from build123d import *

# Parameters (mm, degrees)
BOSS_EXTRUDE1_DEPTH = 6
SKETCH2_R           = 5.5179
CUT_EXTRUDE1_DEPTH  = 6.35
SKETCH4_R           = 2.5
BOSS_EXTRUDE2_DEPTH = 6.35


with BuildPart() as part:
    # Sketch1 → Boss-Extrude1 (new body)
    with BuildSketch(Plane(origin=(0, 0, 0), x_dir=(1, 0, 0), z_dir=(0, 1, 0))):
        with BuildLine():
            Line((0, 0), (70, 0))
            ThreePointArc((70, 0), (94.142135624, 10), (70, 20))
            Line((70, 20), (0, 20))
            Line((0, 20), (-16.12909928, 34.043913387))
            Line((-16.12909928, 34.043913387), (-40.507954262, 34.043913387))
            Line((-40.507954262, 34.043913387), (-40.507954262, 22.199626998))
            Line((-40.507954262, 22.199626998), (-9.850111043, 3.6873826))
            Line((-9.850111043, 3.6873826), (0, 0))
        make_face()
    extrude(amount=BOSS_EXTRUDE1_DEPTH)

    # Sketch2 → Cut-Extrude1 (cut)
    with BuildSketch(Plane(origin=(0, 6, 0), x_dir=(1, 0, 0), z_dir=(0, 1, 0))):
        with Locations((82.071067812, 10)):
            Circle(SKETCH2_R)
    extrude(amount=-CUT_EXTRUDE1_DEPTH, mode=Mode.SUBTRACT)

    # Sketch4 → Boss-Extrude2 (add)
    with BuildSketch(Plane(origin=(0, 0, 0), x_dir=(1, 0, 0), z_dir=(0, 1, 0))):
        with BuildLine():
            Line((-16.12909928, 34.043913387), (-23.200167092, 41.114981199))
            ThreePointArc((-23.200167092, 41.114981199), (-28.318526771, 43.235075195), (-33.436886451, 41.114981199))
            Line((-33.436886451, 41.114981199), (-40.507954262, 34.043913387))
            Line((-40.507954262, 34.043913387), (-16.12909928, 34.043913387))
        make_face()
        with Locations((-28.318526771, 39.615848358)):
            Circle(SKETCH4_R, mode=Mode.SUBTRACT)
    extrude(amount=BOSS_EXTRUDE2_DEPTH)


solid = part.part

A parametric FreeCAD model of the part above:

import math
import FreeCAD as App
import Part
import Sketcher

doc = App.newDocument("Part")
params = doc.addObject("Spreadsheet::Sheet", "Params")
for row, (alias, value) in enumerate([
    ("sketch1_width", "70 mm"),
    ("pad1_length", "6 mm"),
    ("pocket1_length", "6.35 mm"),
    ("sketch3_diameter", "5 mm"),
    ("sketch3_length", "10 mm"),
    ("pad2_length", "6.35 mm"),
], start=1):
    params.set(f"A{row}", alias)
    params.set(f"B{row}", "=" + value)
    params.setAlias(f"B{row}", alias)

body = doc.addObject("PartDesign::Body", "Body")

# Sketch on XZ plane
sketch1 = body.newObject("Sketcher::SketchObject", "Sketch")
sketch1.AttachmentSupport = (doc.getObject("XZ_Plane"), [""])
sketch1.MapMode = "FlatFace"
sketch1.addGeometry(Part.LineSegment(App.Vector(0, 0, 0), App.Vector(70, 0, 0)), False)
sketch1.addGeometry(Part.ArcOfCircle(Part.Circle(App.Vector(80, -10, 0), App.Vector(0, 0, 1), 14), math.radians(-135), math.radians(135)), False)
sketch1.addGeometry(Part.LineSegment(App.Vector(70, -20, 0), App.Vector(0, -20, 0)), False)
sketch1.addGeometry(Part.LineSegment(App.Vector(0, -20, 0), App.Vector(-16, -34, 0)), False)
sketch1.addGeometry(Part.LineSegment(App.Vector(-16, -34, 0), App.Vector(-41, -34, 0)), False)
sketch1.addGeometry(Part.LineSegment(App.Vector(-41, -34, 0), App.Vector(-41, -22, 0)), False)
sketch1.addGeometry(Part.LineSegment(App.Vector(-41, -22, 0), App.Vector(-10, -4, 0)), False)
sketch1.addGeometry(Part.LineSegment(App.Vector(-10, -4, 0), App.Vector(0, 0, 0)), False)
sketch1.addConstraint(Sketcher.Constraint("Coincident", 0, 2, 1, 2))
sketch1.addConstraint(Sketcher.Constraint("Coincident", 1, 1, 2, 1))
sketch1.addConstraint(Sketcher.Constraint("Coincident", 2, 2, 3, 1))
sketch1.addConstraint(Sketcher.Constraint("Coincident", 3, 2, 4, 1))
sketch1.addConstraint(Sketcher.Constraint("Coincident", 4, 2, 5, 1))
sketch1.addConstraint(Sketcher.Constraint("Coincident", 5, 2, 6, 1))
sketch1.addConstraint(Sketcher.Constraint("Coincident", 6, 2, 7, 1))
sketch1.addConstraint(Sketcher.Constraint("Coincident", 7, 2, 0, 1))
sketch1.addConstraint(Sketcher.Constraint("Horizontal", 0))
sketch1.addConstraint(Sketcher.Constraint("Horizontal", 2))
sketch1.addConstraint(Sketcher.Constraint("Horizontal", 4))
sketch1.addConstraint(Sketcher.Constraint("Vertical", 5))
sketch1.addConstraint(Sketcher.Constraint("Coincident", 7, 2, -1, 1))
sketch1.addConstraint(Sketcher.Constraint("PointOnObject", 2, 2, -2))
sketch1.addConstraint(Sketcher.Constraint("Vertical", 0, 2, 1, 1))
sketch1.addConstraint(Sketcher.Constraint("DistanceX", 0, 1, 0, 2, 70.0))
sketch1.addConstraint(Sketcher.Constraint("DistanceX", -1, 1, 1, 3, 80.0))
sketch1.addConstraint(Sketcher.Constraint("DistanceY", 1, 3, -1, 1, 10.0))
sketch1.addConstraint(Sketcher.Constraint("DistanceX", 3, 2, -1, 1, 16.129099))
sketch1.addConstraint(Sketcher.Constraint("Distance", 3, 21.386429))
sketch1.addConstraint(Sketcher.Constraint("DistanceX", 4, 2, 4, 1, 24.378855))
sketch1.addConstraint(Sketcher.Constraint("DistanceY", 5, 1, 5, 2, 11.844286))
sketch1.addConstraint(Sketcher.Constraint("DistanceX", 6, 2, -1, 1, 9.850111))
sketch1.addConstraint(Sketcher.Constraint("DistanceY", 3, 2, 6, 2, 30.356531))
sketch1.setExpression("Constraints[15]", "Params.sketch1_width")
pad1 = body.newObject("PartDesign::Pad", "Pad")
pad1.Profile = sketch1
pad1.setExpression("Length", "Params.pad1_length")
pad1.Reversed = True

# Sketch on XZ plane
sketch2 = body.newObject("Sketcher::SketchObject", "Sketch001")
sketch2.AttachmentSupport = (doc.getObject("XZ_Plane"), [""])
sketch2.MapMode = "FlatFace"
sketch2.AttachmentOffset = App.Placement(App.Vector(0, 0, -6), App.Rotation())
sketch2.addGeometry(Part.Circle(App.Vector(82, -10, 0), App.Vector(0, 0, 1), 6), False)
sketch2.addConstraint(Sketcher.Constraint("DistanceY", 0, 3, -1, 1, 10.0))
sketch2.addConstraint(Sketcher.Constraint("Diameter", 0, 11.0358))
sketch2.addConstraint(Sketcher.Constraint("DistanceX", -1, 1, 0, 3, 82.071068))
pocket1 = body.newObject("PartDesign::Pocket", "Pocket")
pocket1.Profile = sketch2
pocket1.setExpression("Length", "Params.pocket1_length")
pocket1.Reversed = True

# Sketch on XZ plane
sketch3 = body.newObject("Sketcher::SketchObject", "Sketch002")
sketch3.AttachmentSupport = (doc.getObject("XZ_Plane"), [""])
sketch3.MapMode = "FlatFace"
sketch3.addGeometry(Part.LineSegment(App.Vector(-16.1, -34, 0), App.Vector(-23.2, -41.1, 0)), False)
sketch3.addGeometry(Part.ArcOfCircle(Part.Circle(App.Vector(-28.3, -36, 0), App.Vector(0, 0, 1), 7.2), math.radians(-135), math.radians(-45)), False)
sketch3.addGeometry(Part.LineSegment(App.Vector(-33.4, -41.1, 0), App.Vector(-40.5, -34, 0)), False)
sketch3.addGeometry(Part.LineSegment(App.Vector(-40.5, -34, 0), App.Vector(-16.1, -34, 0)), False)
sketch3.addGeometry(Part.Circle(App.Vector(-28.3, -39.6, 0), App.Vector(0, 0, 1), 2.5), False)
sketch3.addConstraint(Sketcher.Constraint("Tangent", 0, 2, 1, 2))
sketch3.addConstraint(Sketcher.Constraint("Tangent", 1, 1, 2, 1))
sketch3.addConstraint(Sketcher.Constraint("Coincident", 2, 2, 3, 1))
sketch3.addConstraint(Sketcher.Constraint("Coincident", 3, 2, 0, 1))
sketch3.addConstraint(Sketcher.Constraint("Horizontal", 3))
sketch3.addConstraint(Sketcher.Constraint("Perpendicular", 0, 2))
sketch3.addConstraint(Sketcher.Constraint("Horizontal", 0, 2, 1, 1))
sketch3.addConstraint(Sketcher.Constraint("Vertical", 1, 3, 4, 3))
sketch3.addConstraint(Sketcher.Constraint("Diameter", 4, 5.0))
sketch3.addConstraint(Sketcher.Constraint("Distance", 0, 10.0))
sketch3.addConstraint(Sketcher.Constraint("Radius", 1, 7.238454))
sketch3.addConstraint(Sketcher.Constraint("DistanceX", 3, 2, -1, 1, 16.129099))
sketch3.addConstraint(Sketcher.Constraint("DistanceY", 1, 3, -1, 1, 35.996622))
sketch3.addConstraint(Sketcher.Constraint("DistanceY", 4, 3, -1, 1, 39.615848))
sketch3.setExpression("Constraints[8]", "Params.sketch3_diameter")
sketch3.setExpression("Constraints[9]", "Params.sketch3_length")
pad2 = body.newObject("PartDesign::Pad", "Pad001")
pad2.Profile = sketch3
pad2.setExpression("Length", "Params.pad2_length")
pad2.Reversed = True

doc.recompute()
